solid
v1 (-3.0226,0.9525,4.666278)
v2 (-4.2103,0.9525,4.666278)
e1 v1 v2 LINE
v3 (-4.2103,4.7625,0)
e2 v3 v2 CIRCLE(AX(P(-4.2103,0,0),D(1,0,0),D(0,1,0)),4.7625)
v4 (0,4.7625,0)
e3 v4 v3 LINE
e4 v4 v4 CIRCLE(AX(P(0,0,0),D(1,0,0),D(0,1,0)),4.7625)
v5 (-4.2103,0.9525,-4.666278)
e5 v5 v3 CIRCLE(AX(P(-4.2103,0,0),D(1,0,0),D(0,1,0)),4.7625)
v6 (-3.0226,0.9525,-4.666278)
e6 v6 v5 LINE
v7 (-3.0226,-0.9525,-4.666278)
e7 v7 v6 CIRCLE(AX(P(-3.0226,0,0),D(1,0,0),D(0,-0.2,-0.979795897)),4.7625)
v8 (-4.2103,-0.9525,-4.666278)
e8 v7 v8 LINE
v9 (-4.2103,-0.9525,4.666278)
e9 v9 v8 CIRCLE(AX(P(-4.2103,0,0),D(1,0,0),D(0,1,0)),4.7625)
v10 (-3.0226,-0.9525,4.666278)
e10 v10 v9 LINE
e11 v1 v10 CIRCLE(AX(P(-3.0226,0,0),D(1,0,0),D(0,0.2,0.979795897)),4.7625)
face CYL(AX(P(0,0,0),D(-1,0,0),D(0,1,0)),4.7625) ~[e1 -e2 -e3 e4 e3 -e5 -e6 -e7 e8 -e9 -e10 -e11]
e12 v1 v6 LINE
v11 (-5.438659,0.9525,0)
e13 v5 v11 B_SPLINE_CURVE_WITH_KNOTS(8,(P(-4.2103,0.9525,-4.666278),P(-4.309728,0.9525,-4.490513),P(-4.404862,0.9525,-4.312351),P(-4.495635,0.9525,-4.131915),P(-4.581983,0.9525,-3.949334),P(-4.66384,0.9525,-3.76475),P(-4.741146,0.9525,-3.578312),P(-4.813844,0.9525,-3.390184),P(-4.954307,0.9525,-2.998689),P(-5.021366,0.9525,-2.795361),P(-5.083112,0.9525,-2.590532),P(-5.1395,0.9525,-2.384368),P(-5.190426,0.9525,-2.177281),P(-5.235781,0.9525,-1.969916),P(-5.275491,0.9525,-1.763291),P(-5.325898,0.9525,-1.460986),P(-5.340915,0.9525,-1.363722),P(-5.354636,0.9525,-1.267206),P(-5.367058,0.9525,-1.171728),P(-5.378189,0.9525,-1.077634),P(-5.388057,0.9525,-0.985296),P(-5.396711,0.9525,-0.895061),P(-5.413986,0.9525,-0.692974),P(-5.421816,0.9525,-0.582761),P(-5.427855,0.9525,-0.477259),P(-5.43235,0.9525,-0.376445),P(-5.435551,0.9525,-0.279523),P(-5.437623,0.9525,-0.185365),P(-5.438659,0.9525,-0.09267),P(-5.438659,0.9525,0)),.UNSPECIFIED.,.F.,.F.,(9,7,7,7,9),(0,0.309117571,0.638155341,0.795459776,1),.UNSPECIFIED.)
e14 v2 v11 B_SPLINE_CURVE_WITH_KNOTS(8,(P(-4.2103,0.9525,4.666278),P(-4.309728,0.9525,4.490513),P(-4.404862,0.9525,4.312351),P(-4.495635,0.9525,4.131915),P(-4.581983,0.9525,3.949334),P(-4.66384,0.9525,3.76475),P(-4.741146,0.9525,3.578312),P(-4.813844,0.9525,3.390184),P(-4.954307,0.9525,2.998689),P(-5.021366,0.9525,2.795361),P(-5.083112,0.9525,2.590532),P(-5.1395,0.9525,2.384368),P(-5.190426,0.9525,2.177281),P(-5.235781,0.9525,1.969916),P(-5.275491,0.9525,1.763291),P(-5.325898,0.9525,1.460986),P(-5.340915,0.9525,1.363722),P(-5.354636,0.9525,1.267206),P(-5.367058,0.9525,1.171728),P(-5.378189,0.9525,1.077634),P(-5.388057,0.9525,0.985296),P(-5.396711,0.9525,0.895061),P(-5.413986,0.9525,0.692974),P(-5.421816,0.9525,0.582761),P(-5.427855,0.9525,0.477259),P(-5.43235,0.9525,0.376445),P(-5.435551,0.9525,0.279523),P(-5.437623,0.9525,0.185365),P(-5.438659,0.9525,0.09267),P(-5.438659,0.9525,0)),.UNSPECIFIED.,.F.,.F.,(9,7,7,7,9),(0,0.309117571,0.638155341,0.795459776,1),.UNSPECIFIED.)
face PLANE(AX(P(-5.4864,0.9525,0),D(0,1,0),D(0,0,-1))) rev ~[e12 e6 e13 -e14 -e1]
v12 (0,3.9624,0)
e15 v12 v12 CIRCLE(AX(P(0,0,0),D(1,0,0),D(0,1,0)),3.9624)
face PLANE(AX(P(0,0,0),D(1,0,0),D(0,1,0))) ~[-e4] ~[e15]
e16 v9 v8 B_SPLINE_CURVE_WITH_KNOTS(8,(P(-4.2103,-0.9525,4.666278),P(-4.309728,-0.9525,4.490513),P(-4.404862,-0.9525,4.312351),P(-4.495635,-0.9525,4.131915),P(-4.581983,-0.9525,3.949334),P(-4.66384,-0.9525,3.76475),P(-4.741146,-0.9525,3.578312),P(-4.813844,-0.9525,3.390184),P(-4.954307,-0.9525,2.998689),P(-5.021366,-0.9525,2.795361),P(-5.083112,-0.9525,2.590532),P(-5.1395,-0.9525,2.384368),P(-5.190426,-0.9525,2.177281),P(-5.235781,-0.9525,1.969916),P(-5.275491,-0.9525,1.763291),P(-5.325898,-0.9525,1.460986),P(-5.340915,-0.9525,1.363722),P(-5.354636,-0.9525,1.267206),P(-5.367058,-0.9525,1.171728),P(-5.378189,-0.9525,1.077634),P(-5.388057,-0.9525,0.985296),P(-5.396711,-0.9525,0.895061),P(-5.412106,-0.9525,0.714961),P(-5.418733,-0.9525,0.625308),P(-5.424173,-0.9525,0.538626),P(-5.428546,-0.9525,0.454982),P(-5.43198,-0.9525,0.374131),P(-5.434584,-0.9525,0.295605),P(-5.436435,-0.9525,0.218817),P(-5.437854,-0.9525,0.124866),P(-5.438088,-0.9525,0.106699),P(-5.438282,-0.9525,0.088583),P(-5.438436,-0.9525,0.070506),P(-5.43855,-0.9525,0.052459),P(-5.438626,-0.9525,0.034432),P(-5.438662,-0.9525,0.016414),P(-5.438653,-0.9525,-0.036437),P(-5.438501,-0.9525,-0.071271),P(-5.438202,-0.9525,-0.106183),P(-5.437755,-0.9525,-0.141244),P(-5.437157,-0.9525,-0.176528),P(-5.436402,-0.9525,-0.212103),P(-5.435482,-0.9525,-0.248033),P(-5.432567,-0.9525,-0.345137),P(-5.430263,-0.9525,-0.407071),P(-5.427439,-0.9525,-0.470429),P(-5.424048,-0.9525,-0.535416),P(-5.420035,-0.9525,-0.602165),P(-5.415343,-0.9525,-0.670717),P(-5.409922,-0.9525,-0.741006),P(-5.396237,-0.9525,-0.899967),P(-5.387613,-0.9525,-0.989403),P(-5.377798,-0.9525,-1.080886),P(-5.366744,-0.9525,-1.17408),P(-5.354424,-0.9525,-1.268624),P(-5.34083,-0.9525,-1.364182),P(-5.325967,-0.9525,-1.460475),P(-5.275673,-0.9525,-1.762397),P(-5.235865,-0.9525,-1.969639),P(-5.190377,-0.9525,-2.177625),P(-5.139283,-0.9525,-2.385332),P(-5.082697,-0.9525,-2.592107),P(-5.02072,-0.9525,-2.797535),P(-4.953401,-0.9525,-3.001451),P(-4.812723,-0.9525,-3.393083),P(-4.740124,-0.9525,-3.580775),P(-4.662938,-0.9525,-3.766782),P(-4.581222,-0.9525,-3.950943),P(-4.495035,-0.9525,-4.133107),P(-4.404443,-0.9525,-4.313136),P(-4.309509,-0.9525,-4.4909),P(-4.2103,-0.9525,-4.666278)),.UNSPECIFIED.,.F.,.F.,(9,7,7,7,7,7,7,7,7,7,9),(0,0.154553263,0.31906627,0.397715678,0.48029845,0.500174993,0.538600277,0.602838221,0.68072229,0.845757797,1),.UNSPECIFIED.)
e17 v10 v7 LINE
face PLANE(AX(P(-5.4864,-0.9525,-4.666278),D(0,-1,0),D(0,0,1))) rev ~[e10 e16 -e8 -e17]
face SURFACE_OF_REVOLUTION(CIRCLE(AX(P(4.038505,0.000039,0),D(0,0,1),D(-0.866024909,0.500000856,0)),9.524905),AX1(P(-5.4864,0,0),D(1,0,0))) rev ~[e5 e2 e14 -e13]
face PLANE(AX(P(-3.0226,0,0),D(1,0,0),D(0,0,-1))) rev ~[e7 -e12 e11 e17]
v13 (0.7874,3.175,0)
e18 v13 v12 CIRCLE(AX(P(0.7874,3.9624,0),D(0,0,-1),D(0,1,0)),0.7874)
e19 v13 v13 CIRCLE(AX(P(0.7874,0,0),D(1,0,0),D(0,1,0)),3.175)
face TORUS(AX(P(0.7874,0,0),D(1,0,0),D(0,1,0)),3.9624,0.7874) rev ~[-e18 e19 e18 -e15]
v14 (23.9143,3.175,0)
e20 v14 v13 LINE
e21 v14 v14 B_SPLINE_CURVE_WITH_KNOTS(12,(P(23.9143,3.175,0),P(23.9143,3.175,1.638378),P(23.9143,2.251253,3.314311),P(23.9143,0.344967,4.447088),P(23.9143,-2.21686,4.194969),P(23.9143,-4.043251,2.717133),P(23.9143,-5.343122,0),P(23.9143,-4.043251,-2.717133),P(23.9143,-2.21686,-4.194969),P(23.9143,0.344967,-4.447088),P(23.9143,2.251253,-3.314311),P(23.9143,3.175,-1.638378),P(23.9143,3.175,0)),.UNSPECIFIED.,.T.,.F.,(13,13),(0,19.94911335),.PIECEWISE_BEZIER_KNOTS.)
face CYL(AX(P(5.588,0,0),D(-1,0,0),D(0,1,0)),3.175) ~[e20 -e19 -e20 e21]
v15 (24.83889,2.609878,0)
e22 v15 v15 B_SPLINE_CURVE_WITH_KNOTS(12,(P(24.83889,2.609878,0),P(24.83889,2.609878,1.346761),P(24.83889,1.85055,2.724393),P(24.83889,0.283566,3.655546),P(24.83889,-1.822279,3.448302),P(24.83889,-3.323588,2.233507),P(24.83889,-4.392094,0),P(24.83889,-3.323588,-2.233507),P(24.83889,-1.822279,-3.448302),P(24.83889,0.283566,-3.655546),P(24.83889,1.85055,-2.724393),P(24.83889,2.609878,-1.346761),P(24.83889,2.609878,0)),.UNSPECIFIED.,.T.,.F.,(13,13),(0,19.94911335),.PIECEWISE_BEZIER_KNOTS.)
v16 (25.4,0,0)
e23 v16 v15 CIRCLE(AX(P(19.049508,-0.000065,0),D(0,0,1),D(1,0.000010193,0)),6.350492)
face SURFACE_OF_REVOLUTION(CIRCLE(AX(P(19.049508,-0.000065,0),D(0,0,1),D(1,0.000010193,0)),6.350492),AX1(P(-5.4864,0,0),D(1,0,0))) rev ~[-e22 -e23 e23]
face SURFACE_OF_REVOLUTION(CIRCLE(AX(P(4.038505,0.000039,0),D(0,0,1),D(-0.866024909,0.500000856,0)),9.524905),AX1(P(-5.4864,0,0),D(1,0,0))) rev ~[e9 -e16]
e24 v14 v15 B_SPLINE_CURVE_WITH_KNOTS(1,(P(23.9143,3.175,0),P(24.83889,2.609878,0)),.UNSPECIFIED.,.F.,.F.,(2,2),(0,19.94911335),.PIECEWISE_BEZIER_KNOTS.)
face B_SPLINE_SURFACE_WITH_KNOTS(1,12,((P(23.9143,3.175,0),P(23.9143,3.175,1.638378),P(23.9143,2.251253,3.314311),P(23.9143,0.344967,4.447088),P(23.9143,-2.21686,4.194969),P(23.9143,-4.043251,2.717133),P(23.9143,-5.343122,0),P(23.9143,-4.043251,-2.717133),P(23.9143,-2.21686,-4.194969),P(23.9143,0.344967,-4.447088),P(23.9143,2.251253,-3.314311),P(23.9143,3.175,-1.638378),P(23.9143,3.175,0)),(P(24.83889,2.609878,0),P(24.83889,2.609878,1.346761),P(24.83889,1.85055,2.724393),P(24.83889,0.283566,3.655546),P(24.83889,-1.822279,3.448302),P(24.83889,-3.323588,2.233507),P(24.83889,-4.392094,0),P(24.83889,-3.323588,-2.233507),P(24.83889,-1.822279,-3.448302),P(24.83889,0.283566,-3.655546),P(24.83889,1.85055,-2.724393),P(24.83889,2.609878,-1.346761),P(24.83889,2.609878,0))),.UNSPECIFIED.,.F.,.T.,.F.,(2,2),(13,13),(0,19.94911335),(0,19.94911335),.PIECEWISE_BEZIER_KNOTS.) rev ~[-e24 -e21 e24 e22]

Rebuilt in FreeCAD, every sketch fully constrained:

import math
import FreeCAD as App
import Part
import Sketcher
from FreeCAD import Vector
Q = App.Units.Quantity


def edges_at(feature, points):
    """Names of the edges that pass closest to the given points."""
    edges = feature.Shape.Edges
    near = lambda p: min(range(len(edges)), key=lambda i: edges[i].distToShape(Part.Vertex(*p))[0])
    return sorted({f"Edge{near(p) + 1}" for p in points})

doc = App.newDocument("Part")
params = doc.addObject("Spreadsheet::Sheet", "Params")
for row, (alias, value) in enumerate([
    ("sketch1_width", "1 in"),
    ("sketch1_radius", "0.375 in"),
    ("sketch1_height", "0.125 in"),
    ("sketch1_height2", "0.0625 in"),
    ("revolution_angle", "360 deg"),
    ("sketch2_width", "0.075 in"),
    ("sketch2_height", "0.375 in"),
    ("pocket1_length", "0.097 in"),
    ("sketch3_radius", "0.25 in"),
    ("sketch3_height", "0.125 in"),
    ("groove_angle", "360 deg"),
    ("chamfer_size", "0.025 in"),
    ("fillet_radius", "0.031 in"),
], start=1):
    params.set(f"A{row}", alias)
    params.set(f"B{row}", "=" + value)
    params.setAlias(f"B{row}", alias)

body = doc.addObject("PartDesign::Body", "Body")

# Sketch on XY plane
sketch1 = body.newObject("Sketcher::SketchObject", "Sketch")
sketch1.AttachmentSupport = (doc.getObject("XY_Plane"), [""])
sketch1.MapMode = "FlatFace"
sketch1.addGeometry([
    Part.ArcOfCircle(Part.Circle(Vector(4, 0, 0), Vector(0, 0, 1), 9.5), math.radians(150), math.radians(180)),  # 0
    Part.LineSegment(Vector(-5.5, 0, 0), Vector(25.4, 0, 0)),  # 1
    Part.LineSegment(Vector(25.4, 0, 0), Vector(25.4, 3.2, 0)),  # 2
    Part.LineSegment(Vector(25.4, 3.2, 0), Vector(0, 3.2, 0)),  # 3
    Part.LineSegment(Vector(0, 3.2, 0), Vector(0, 4.8, 0)),  # 4
    Part.LineSegment(Vector(0, 4.8, 0), Vector(-4.2, 4.8, 0)),  # 5
], False)
sketch1.addConstraint([
    Sketcher.Constraint("Coincident", 0, 2, 1, 1),
    Sketcher.Constraint("Coincident", 1, 2, 2, 1),
    Sketcher.Constraint("Coincident", 2, 2, 3, 1),
    Sketcher.Constraint("Coincident", 3, 2, 4, 1),
    Sketcher.Constraint("Coincident", 4, 2, 5, 1),
    Sketcher.Constraint("Coincident", 5, 2, 0, 1),
    Sketcher.Constraint("Horizontal", 1),
    Sketcher.Constraint("Vertical", 2),
    Sketcher.Constraint("Horizontal", 3),
    Sketcher.Constraint("Vertical", 4),
    Sketcher.Constraint("Horizontal", 5),
    Sketcher.Constraint("PointOnObject", 0, 3, -1),
    Sketcher.Constraint("PointOnObject", 0, 2, -1),
    Sketcher.Constraint("PointOnObject", 3, 2, -2),
    Sketcher.Constraint("DistanceX", 3, 2, 3, 1, Q("1 in")),
    Sketcher.Constraint("Radius", 0, Q("0.375 in")),
    Sketcher.Constraint("DistanceX", 0, 2, -1, 1, Q("0.216 in")),
    Sketcher.Constraint("DistanceY", 2, 1, 2, 2, Q("0.125 in")),
    Sketcher.Constraint("DistanceY", 4, 1, 4, 2, Q("0.0625 in")),
])
sketch1.setExpression("Constraints[14]", "Params.sketch1_width")
sketch1.setExpression("Constraints[15]", "Params.sketch1_radius")
sketch1.setExpression("Constraints[17]", "Params.sketch1_height")
sketch1.setExpression("Constraints[18]", "Params.sketch1_height2")
revolution = body.newObject("PartDesign::Revolution", "Revolution")
revolution.Profile = sketch1
revolution.ReferenceAxis = (sketch1, ["H_Axis"])
revolution.setExpression("Angle", "Params.revolution_angle")

# Sketch on YZ plane
sketch2 = body.newObject("Sketcher::SketchObject", "Sketch001")
sketch2.AttachmentSupport = (doc.getObject("YZ_Plane"), [""])
sketch2.MapMode = "FlatFace"
sketch2.AttachmentOffset = App.Placement(Vector(0, 0, -0.216 * 25.4), App.Rotation())
sketch2.addGeometry([
    Part.LineSegment(Vector(1, 4.8, 0), Vector(-1, 4.8, 0)),
    Part.LineSegment(Vector(-1, 4.8, 0), Vector(-1, -4.8, 0)),
    Part.LineSegment(Vector(-1, -4.8, 0), Vector(1, -4.8, 0)),
    Part.LineSegment(Vector(1, -4.8, 0), Vector(1, 4.8, 0)),
], False)
sketch2.addConstraint([
    Sketcher.Constraint("Coincident", 0, 2, 1, 1),
    Sketcher.Constraint("Coincident", 1, 2, 2, 1),
    Sketcher.Constraint("Coincident", 2, 2, 3, 1),
    Sketcher.Constraint("Coincident", 3, 2, 0, 1),
    Sketcher.Constraint("Horizontal", 0),
    Sketcher.Constraint("Vertical", 1),
    Sketcher.Constraint("Horizontal", 2),
    Sketcher.Constraint("Vertical", 3),
    Sketcher.Constraint("Symmetric", 0, 2, 2, 2, -1, 1),
    Sketcher.Constraint("DistanceX", 0, 2, 0, 1, Q("0.075 in")),
    Sketcher.Constraint("DistanceY", 1, 2, 1, 1, Q("0.375 in")),
])
sketch2.setExpression("Constraints[9]", "Params.sketch2_width")
sketch2.setExpression("Constraints[10]", "Params.sketch2_height")
pocket1 = body.newObject("PartDesign::Pocket", "Pocket")
pocket1.Profile = sketch2
pocket1.setExpression("Length", "Params.pocket1_length")
pocket1.Reversed = True

# Sketch on XY plane
sketch3 = body.newObject("Sketcher::SketchObject", "Sketch002")
sketch3.AttachmentSupport = (doc.getObject("XY_Plane"), [""])
sketch3.MapMode = "FlatFace"
sketch3.addGeometry([
    Part.ArcOfCircle(Part.Circle(Vector(19.1, 0, 0), Vector(0, 0, 1), 6.3), math.radians(0), math.radians(30)),
    Part.LineSegment(Vector(25.4, 0, 0), Vector(25.4, 3.2, 0)),
    Part.LineSegment(Vector(25.4, 3.2, 0), Vector(24.5, 3.2, 0)),
], False)
sketch3.addConstraint([
    Sketcher.Constraint("Tangent", 0, 1, 1, 1),
    Sketcher.Constraint("Coincident", 1, 2, 2, 1),
    Sketcher.Constraint("Coincident", 2, 2, 0, 2),
    Sketcher.Constraint("Vertical", 1),
    Sketcher.Constraint("Horizontal", 2),
    Sketcher.Constraint("PointOnObject", 0, 3, -1),
    Sketcher.Constraint("Radius", 0, Q("0.25 in")),
    Sketcher.Constraint("DistanceX", -1, 1, 0, 1, Q("1 in")),
    Sketcher.Constraint("DistanceY", 1, 1, 1, 2, Q("0.125 in")),
])
sketch3.setExpression("Constraints[6]", "Params.sketch3_radius")
sketch3.setExpression("Constraints[8]", "Params.sketch3_height")
groove = body.newObject("PartDesign::Groove", "Groove")
groove.Profile = sketch3
groove.ReferenceAxis = (sketch3, ["H_Axis"])
groove.setExpression("Angle", "Params.groove_angle")
doc.recompute()

chamfer = body.newObject("PartDesign::Chamfer", "Chamfer")
chamfer.Base = (groove, edges_at(groove, [(24.549, -3.175, 0)]))
chamfer.setExpression("Size", "Params.chamfer_size")
doc.recompute()

fillet = body.newObject("PartDesign::Fillet", "Fillet")
fillet.Base = (chamfer, edges_at(chamfer, [(0, -3.175, 0)]))
fillet.setExpression("Radius", "Params.fillet_radius")

doc.recompute()
